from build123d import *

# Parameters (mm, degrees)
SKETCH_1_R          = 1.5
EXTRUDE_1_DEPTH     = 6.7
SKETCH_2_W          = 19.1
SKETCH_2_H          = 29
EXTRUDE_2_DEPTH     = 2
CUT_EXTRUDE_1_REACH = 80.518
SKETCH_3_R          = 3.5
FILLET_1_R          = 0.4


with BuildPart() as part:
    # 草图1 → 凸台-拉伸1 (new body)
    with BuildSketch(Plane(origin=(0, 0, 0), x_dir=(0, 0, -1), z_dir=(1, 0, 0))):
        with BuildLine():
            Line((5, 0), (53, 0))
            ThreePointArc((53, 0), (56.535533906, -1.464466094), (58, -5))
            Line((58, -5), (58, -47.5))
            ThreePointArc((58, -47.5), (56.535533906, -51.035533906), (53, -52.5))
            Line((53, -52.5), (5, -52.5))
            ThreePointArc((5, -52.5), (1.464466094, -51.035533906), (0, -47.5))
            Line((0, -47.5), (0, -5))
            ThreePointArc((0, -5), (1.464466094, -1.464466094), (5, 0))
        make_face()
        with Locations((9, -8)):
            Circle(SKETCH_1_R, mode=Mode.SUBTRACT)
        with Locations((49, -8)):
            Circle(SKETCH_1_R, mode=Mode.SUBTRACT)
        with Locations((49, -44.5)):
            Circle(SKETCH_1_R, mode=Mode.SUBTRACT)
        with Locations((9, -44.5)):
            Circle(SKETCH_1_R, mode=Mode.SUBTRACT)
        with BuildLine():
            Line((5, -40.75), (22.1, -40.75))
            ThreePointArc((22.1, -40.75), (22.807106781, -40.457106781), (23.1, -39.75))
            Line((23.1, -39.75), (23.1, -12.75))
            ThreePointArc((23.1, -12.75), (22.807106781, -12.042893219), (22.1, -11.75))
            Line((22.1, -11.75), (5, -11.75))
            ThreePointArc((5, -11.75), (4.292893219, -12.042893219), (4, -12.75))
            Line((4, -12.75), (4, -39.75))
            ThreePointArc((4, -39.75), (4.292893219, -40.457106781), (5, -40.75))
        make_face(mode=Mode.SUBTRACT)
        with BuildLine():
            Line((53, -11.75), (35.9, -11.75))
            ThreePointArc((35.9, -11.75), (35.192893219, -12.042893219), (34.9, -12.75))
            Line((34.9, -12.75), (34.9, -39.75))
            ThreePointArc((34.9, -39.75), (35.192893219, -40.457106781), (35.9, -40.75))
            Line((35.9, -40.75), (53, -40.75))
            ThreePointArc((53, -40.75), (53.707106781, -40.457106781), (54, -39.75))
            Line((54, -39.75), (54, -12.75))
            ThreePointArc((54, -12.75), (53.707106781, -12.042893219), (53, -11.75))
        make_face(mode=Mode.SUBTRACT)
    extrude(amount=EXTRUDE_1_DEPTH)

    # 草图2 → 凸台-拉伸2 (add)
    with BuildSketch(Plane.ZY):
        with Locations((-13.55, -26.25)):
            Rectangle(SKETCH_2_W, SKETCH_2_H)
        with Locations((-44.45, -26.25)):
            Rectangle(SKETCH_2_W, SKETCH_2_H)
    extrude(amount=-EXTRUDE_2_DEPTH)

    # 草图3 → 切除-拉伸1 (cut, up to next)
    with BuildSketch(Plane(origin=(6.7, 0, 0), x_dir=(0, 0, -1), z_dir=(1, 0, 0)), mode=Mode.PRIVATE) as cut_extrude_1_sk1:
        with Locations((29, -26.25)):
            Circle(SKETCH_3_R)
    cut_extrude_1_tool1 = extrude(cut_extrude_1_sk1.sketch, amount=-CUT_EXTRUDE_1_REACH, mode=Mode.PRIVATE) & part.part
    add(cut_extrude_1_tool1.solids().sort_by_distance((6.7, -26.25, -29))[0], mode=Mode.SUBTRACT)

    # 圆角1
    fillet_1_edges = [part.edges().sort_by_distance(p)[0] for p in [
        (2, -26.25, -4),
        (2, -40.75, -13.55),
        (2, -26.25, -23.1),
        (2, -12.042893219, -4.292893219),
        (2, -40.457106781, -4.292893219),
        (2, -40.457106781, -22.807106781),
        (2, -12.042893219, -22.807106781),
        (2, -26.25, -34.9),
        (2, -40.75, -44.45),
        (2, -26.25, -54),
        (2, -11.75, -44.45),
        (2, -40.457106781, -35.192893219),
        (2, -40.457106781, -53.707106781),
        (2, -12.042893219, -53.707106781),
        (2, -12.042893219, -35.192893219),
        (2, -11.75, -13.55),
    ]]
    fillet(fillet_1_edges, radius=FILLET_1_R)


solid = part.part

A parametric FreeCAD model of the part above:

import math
import FreeCAD as App
import Part
import Sketcher
Q = App.Units.Quantity


def edges_at(feature, points):
    """Names of the edges that pass closest to the given points."""
    edges = feature.Shape.Edges
    near = lambda p: min(range(len(edges)), key=lambda i: edges[i].distToShape(Part.Vertex(*p))[0])
    return sorted({f"Edge{near(p) + 1}" for p in points})


def add_polygon(sketch, points):
    """Adds a closed chain of lines whose ends are joined by coincident constraints."""
    first, n = sketch.GeometryCount, len(points)
    for a, b in zip(points, points[1:] + points[:1]):
        sketch.addGeometry(Part.LineSegment(App.Vector(*a, 0), App.Vector(*b, 0)), False)
    for i in range(n):
        sketch.addConstraint(Sketcher.Constraint("Coincident", first + i, 2, first + (i + 1) % n, 1))

doc = App.newDocument("Part")
body = doc.addObject("PartDesign::Body", "Body")

# Sketch on YZ plane
sketch1 = body.newObject("Sketcher::SketchObject", "Sketch")
sketch1.AttachmentSupport = (doc.getObject("YZ_Plane"), [""])
sketch1.MapMode = "FlatFace"
sketch1.addGeometry(Part.LineSegment(App.Vector(0, -53, 0), App.Vector(0, -5, 0)), False)
sketch1.addGeometry(Part.ArcOfCircle(Part.Circle(App.Vector(-5, -5, 0), App.Vector(0, 0, 1), 5), math.radians(0), math.radians(90)), False)
sketch1.addGeometry(Part.LineSegment(App.Vector(-5, 0, 0), App.Vector(-47.5, 0, 0)), False)
sketch1.addGeometry(Part.ArcOfCircle(Part.Circle(App.Vector(-47.5, -5, 0), App.Vector(0, 0, 1), 5), math.radians(90), math.radians(180)), False)
sketch1.addGeometry(Part.LineSegment(App.Vector(-52.5, -5, 0), App.Vector(-52.5, -53, 0)), False)
sketch1.addGeometry(Part.ArcOfCircle(Part.Circle(App.Vector(-47.5, -53, 0), App.Vector(0, 0, 1), 5), math.radians(180), math.radians(270)), False)
sketch1.addGeometry(Part.LineSegment(App.Vector(-47.5, -58, 0), App.Vector(-5, -58, 0)), False)
sketch1.addGeometry(Part.ArcOfCircle(Part.Circle(App.Vector(-5, -53, 0), App.Vector(0, 0, 1), 5), math.radians(-90), math.radians(0)), False)
sketch1.addGeometry(Part.Circle(App.Vector(-44.5, -49, 0), App.Vector(0, 0, 1), 1.5), False)
sketch1.addGeometry(Part.Circle(App.Vector(-44.5, -9, 0), App.Vector(0, 0, 1), 1.5), False)
sketch1.addGeometry(Part.ArcOfCircle(Part.Circle(App.Vector(-12.8, -53, 0), App.Vector(0, 0, 1), 1), math.radians(-90), math.radians(0)), False)
sketch1.addGeometry(Part.LineSegment(App.Vector(-12.8, -54, 0), App.Vector(-39.8, -54, 0)), False)
sketch1.addGeometry(Part.ArcOfCircle(Part.Circle(App.Vector(-39.7, -53, 0), App.Vector(0, 0, 1), 1), math.radians(-180), math.radians(-90)), False)
sketch1.addGeometry(Part.LineSegment(App.Vector(-40.8, -53, 0), App.Vector(-40.8, -35.9, 0)), False)
sketch1.addGeometry(Part.ArcOfCircle(Part.Circle(App.Vector(-39.7, -35.9, 0), App.Vector(0, 0, 1), 1), math.radians(90), math.radians(180)), False)
sketch1.addGeometry(Part.LineSegment(App.Vector(-39.8, -34.9, 0), App.Vector(-12.8, -34.9, 0)), False)
sketch1.addGeometry(Part.ArcOfCircle(Part.Circle(App.Vector(-12.8, -35.9, 0), App.Vector(0, 0, 1), 1), math.radians(0), math.radians(90)), False)
sketch1.addGeometry(Part.LineSegment(App.Vector(-11.8, -35.9, 0), App.Vector(-11.8, -53, 0)), False)
sketch1.addGeometry(Part.Circle(App.Vector(-8, -49, 0), App.Vector(0, 0, 1), 1.5), False)
sketch1.addGeometry(Part.ArcOfCircle(Part.Circle(App.Vector(-39.7, -5, 0), App.Vector(0, 0, 1), 1), math.radians(90), math.radians(180)), False)
sketch1.addGeometry(Part.LineSegment(App.Vector(-39.8, -4, 0), App.Vector(-12.8, -4, 0)), False)
sketch1.addGeometry(Part.ArcOfCircle(Part.Circle(App.Vector(-12.8, -5, 0), App.Vector(0, 0, 1), 1), math.radians(0), math.radians(90)), False)
sketch1.addGeometry(Part.LineSegment(App.Vector(-11.8, -5, 0), App.Vector(-11.8, -22.1, 0)), False)
sketch1.addGeometry(Part.ArcOfCircle(Part.Circle(App.Vector(-12.8, -22.1, 0), App.Vector(0, 0, 1), 1), math.radians(-90), math.radians(0)), False)
sketch1.addGeometry(Part.LineSegment(App.Vector(-12.8, -23.1, 0), App.Vector(-39.8, -23.1, 0)), False)
sketch1.addGeometry(Part.ArcOfCircle(Part.Circle(App.Vector(-39.7, -22.1, 0), App.Vector(0, 0, 1), 1), math.radians(-180), math.radians(-90)), False)
sketch1.addGeometry(Part.LineSegment(App.Vector(-40.8, -22.1, 0), App.Vector(-40.8, -5, 0)), False)
sketch1.addGeometry(Part.Circle(App.Vector(-8, -9, 0), App.Vector(0, 0, 1), 1.5), False)
sketch1.addConstraint(Sketcher.Constraint("Tangent", 0, 2, 1, 1))
sketch1.addConstraint(Sketcher.Constraint("Tangent", 1, 2, 2, 1))
sketch1.addConstraint(Sketcher.Constraint("Tangent", 2, 2, 3, 1))
sketch1.addConstraint(Sketcher.Constraint("Tangent", 3, 2, 4, 1))
sketch1.addConstraint(Sketcher.Constraint("Tangent", 4, 2, 5, 1))
sketch1.addConstraint(Sketcher.Constraint("Tangent", 5, 2, 6, 1))
sketch1.addConstraint(Sketcher.Constraint("Tangent", 6, 2, 7, 1))
sketch1.addConstraint(Sketcher.Constraint("Tangent", 7, 2, 0, 1))
sketch1.addConstraint(Sketcher.Constraint("Tangent", 10, 1, 11, 1))
sketch1.addConstraint(Sketcher.Constraint("Tangent", 11, 2, 12, 2))
sketch1.addConstraint(Sketcher.Constraint("Tangent", 12, 1, 13, 1))
sketch1.addConstraint(Sketcher.Constraint("Tangent", 13, 2, 14, 2))
sketch1.addConstraint(Sketcher.Constraint("Tangent", 14, 1, 15, 1))
sketch1.addConstraint(Sketcher.Constraint("Tangent", 15, 2, 16, 2))
sketch1.addConstraint(Sketcher.Constraint("Tangent", 16, 1, 17, 1))
sketch1.addConstraint(Sketcher.Constraint("Tangent", 17, 2, 10, 2))
sketch1.addConstraint(Sketcher.Constraint("Tangent", 19, 1, 20, 1))
sketch1.addConstraint(Sketcher.Constraint("Tangent", 20, 2, 21, 2))
sketch1.addConstraint(Sketcher.Constraint("Tangent", 21, 1, 22, 1))
sketch1.addConstraint(Sketcher.Constraint("Tangent", 22, 2, 23, 2))
sketch1.addConstraint(Sketcher.Constraint("Tangent", 23, 1, 24, 1))
sketch1.addConstraint(Sketcher.Constraint("Tangent", 24, 2, 25, 2))
sketch1.addConstraint(Sketcher.Constraint("Tangent", 25, 1, 26, 1))
sketch1.addConstraint(Sketcher.Constraint("Tangent", 26, 2, 19, 2))
sketch1.addConstraint(Sketcher.Constraint("Vertical", 0))
sketch1.addConstraint(Sketcher.Constraint("Horizontal", 2))
sketch1.addConstraint(Sketcher.Constraint("Vertical", 4))
sketch1.addConstraint(Sketcher.Constraint("Horizontal", 6))
sketch1.addConstraint(Sketcher.Constraint("Horizontal", 11))
sketch1.addConstraint(Sketcher.Constraint("Vertical", 13))
sketch1.addConstraint(Sketcher.Constraint("Horizontal", 15))
sketch1.addConstraint(Sketcher.Constraint("Vertical", 17))
sketch1.addConstraint(Sketcher.Constraint("Horizontal", 20))
sketch1.addConstraint(Sketcher.Constraint("Vertical", 22))
sketch1.addConstraint(Sketcher.Constraint("Horizontal", 24))
sketch1.addConstraint(Sketcher.Constraint("Vertical", 26))
sketch1.addConstraint(Sketcher.Constraint("Equal", 1, 3))
sketch1.addConstraint(Sketcher.Constraint("Equal", 3, 5))
sketch1.addConstraint(Sketcher.Constraint("Equal", 5, 7))
sketch1.addConstraint(Sketcher.Constraint("Equal", 8, 9))
sketch1.addConstraint(Sketcher.Constraint("Equal", 10, 12))
sketch1.addConstraint(Sketcher.Constraint("Equal", 12, 14))
sketch1.addConstraint(Sketcher.Constraint("Equal", 14, 16))
sketch1.addConstraint(Sketcher.Constraint("Equal", 9, 18))
sketch1.addConstraint(Sketcher.Constraint("Equal", 16, 19))
sketch1.addConstraint(Sketcher.Constraint("Equal", 19, 21))
sketch1.addConstraint(Sketcher.Constraint("Equal", 21, 23))
sketch1.addConstraint(Sketcher.Constraint("Equal", 23, 25))
sketch1.addConstraint(Sketcher.Constraint("Equal", 18, 27))
sketch1.addConstraint(Sketcher.Constraint("PointOnObject", 0, 2, -2))
sketch1.addConstraint(Sketcher.Constraint("PointOnObject", 1, 2, -1))
sketch1.addConstraint(Sketcher.Constraint("Horizontal", 7, 3, 10, 3))
sketch1.addConstraint(Sketcher.Constraint("Horizontal", 8, 3, 18, 3))
sketch1.addConstraint(Sketcher.Constraint("Horizontal", 3, 3, 19, 3))
sketch1.addConstraint(Sketcher.Constraint("Horizontal", 9, 3, 27, 3))
sketch1.addConstraint(Sketcher.Constraint("Vertical", 8, 3, 9, 3))
sketch1.addConstraint(Sketcher.Constraint("Vertical", 14, 3, 19, 3))
sketch1.addConstraint(Sketcher.Constraint("Vertical", 16, 3, 21, 3))
sketch1.addConstraint(Sketcher.Constraint("Vertical", 18, 3, 27, 3))
sketch1.addConstraint(Sketcher.Constraint("Equal", 17, 22))
sketch1.addConstraint(Sketcher.Constraint("Diameter", 8, Q("3 mm")))
sketch1.addConstraint(Sketcher.Constraint("Radius", 1, Q("5 mm")))
sketch1.addConstraint(Sketcher.Constraint("Radius", 10, Q("1 mm")))
sketch1.addConstraint(Sketcher.Constraint("DistanceX", 11, 2, 11, 1, Q("27 mm")))
sketch1.addConstraint(Sketcher.Constraint("DistanceY", 0, 1, 0, 2, Q("48 mm")))
sketch1.addConstraint(Sketcher.Constraint("DistanceX", 2, 2, 2, 1, Q("42.5 mm")))
sketch1.addConstraint(Sketcher.Constraint("DistanceY", 13, 1, 13, 2, Q("17.1 mm")))
sketch1.addConstraint(Sketcher.Constraint("DistanceY", 8, 3, -1, 1, Q("49 mm")))
sketch1.addConstraint(Sketcher.Constraint("DistanceY", 9, 3, -1, 1, Q("9 mm")))
sketch1.addConstraint(Sketcher.Constraint("DistanceX", 18, 3, -1, 1, Q("8 mm")))
sketch1.addConstraint(Sketcher.Constraint("DistanceX", 5, 3, 8, 3, Q("3 mm")))
sketch1.addConstraint(Sketcher.Constraint("DistanceX", 10, 3, -1, 1, Q("12.75 mm")))
pad1 = body.newObject("PartDesign::Pad", "Pad")
pad1.Profile = sketch1
pad1.Length = 6.7

# Sketch on YZ plane
sketch2 = body.newObject("Sketcher::SketchObject", "Sketch001")
sketch2.AttachmentSupport = (doc.getObject("YZ_Plane"), [""])
sketch2.MapMode = "FlatFace"
add_polygon(sketch2, [(-12, -23), (-41, -23), (-41, -4), (-12, -4)])  # lines 0-3
add_polygon(sketch2, [(-12, -54), (-41, -54), (-41, -35), (-12, -35)])  # lines 4-7
sketch2.addConstraint(Sketcher.Constraint("Horizontal", 0))
sketch2.addConstraint(Sketcher.Constraint("Vertical", 1))
sketch2.addConstraint(Sketcher.Constraint("Horizontal", 2))
sketch2.addConstraint(Sketcher.Constraint("Vertical", 3))
sketch2.addConstraint(Sketcher.Constraint("Horizontal", 4))
sketch2.addConstraint(Sketcher.Constraint("Vertical", 5))
sketch2.addConstraint(Sketcher.Constraint("Horizontal", 6))
sketch2.addConstraint(Sketcher.Constraint("Vertical", 7))
sketch2.addConstraint(Sketcher.Constraint("Vertical", 1, 2, 4, 2))
sketch2.addConstraint(Sketcher.Constraint("Vertical", 3, 2, 6, 2))
sketch2.addConstraint(Sketcher.Constraint("Equal", 3, 5))
sketch2.addConstraint(Sketcher.Constraint("DistanceX", 0, 2, 0, 1, Q("29 mm")))
sketch2.addConstraint(Sketcher.Constraint("DistanceY", 1, 1, 1, 2, Q("19.1 mm")))
sketch2.addConstraint(Sketcher.Constraint("DistanceY", 1, 2, -1, 1, Q("4 mm")))
sketch2.addConstraint(Sketcher.Constraint("DistanceY", 4, 2, -1, 1, Q("54 mm")))
sketch2.addConstraint(Sketcher.Constraint("DistanceX", 0, 2, -1, 1, Q("40.75 mm")))
pad2 = body.newObject("PartDesign::Pad", "Pad001")
pad2.Profile = sketch2
pad2.Length = 2

# Sketch on YZ plane
sketch3 = body.newObject("Sketcher::SketchObject", "Sketch002")
sketch3.AttachmentSupport = (doc.getObject("YZ_Plane"), [""])
sketch3.MapMode = "FlatFace"
sketch3.AttachmentOffset = App.Placement(App.Vector(0, 0, 6.7), App.Rotation())
sketch3.addGeometry(Part.Circle(App.Vector(-26.2, -29, 0), App.Vector(0, 0, 1), 3.5), False)
sketch3.addConstraint(Sketcher.Constraint("Diameter", 0, Q("7 mm")))
sketch3.addConstraint(Sketcher.Constraint("DistanceY", 0, 3, -1, 1, Q("29 mm")))
sketch3.addConstraint(Sketcher.Constraint("DistanceX", 0, 3, -1, 1, Q("26.25 mm")))
pocket1 = body.newObject("PartDesign::Pocket", "Pocket")
pocket1.Profile = sketch3
pocket1.Type = "UpToFirst"
doc.recompute()

fillet = body.newObject("PartDesign::Fillet", "Fillet")
fillet.Base = (pocket1, edges_at(pocket1, [
    (2, -26.25, -4),
    (2, -40.75, -13.55),
    (2, -26.25, -23.1),
    (2, -12.043, -4.293),
    (2, -40.457, -4.293),
    (2, -40.457, -22.807),
    (2, -12.043, -22.807),
    (2, -26.25, -34.9),
    (2, -40.75, -44.45),
    (2, -26.25, -54),
    (2, -11.75, -44.45),
    (2, -40.457, -35.193),
    (2, -40.457, -53.707),
    (2, -12.043, -53.707),
    (2, -12.043, -35.193),
    (2, -11.75, -13.55),
]))
fillet.Radius = 0.4

doc.recompute()
